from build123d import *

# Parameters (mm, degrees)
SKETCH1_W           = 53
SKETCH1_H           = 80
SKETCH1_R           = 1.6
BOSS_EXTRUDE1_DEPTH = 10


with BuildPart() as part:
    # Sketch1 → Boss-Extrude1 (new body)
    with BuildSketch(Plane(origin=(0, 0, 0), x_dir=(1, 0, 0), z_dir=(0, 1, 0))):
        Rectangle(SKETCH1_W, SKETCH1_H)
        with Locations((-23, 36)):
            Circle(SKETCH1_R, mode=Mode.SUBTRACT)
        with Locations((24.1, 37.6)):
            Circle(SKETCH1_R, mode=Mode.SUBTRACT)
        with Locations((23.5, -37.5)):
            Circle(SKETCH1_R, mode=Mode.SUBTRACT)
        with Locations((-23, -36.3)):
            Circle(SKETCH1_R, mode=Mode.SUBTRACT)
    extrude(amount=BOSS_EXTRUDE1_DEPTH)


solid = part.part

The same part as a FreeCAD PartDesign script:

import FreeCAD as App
import Part
import Sketcher
from FreeCAD import Vector
Q = App.Units.Quantity


def add_polygon(sketch, points):
    """Adds a closed chain of lines whose ends are joined by coincident constraints."""
    first, n = sketch.GeometryCount, len(points)
    for a, b in zip(points, points[1:] + points[:1]):
        sketch.addGeometry(Part.LineSegment(App.Vector(*a, 0), App.Vector(*b, 0)), False)
    for i in range(n):
        sketch.addConstraint(Sketcher.Constraint("Coincident", first + i, 2, first + (i + 1) % n, 1))

doc = App.newDocument("Part")
body = doc.addObject("PartDesign::Body", "Body")

# Sketch on XZ plane
sketch1 = body.newObject("Sketcher::SketchObject", "Sketch")
sketch1.AttachmentSupport = (doc.getObject("XZ_Plane"), [""])
sketch1.MapMode = "FlatFace"
add_polygon(sketch1, [(-26.5, -40), (-26.5, 40), (26.5, 40), (26.5, -40)])  # lines 0-3
sketch1.addGeometry(Part.Circle(Vector(-23, 36.3, 0), Vector(0, 0, 1), 1.6), False)  # 4
sketch1.addGeometry(Part.Circle(Vector(23.5, 37.5, 0), Vector(0, 0, 1), 1.6), False)  # 5
sketch1.addGeometry(Part.Circle(Vector(-23, -36, 0), Vector(0, 0, 1), 1.6), False)  # 6
sketch1.addGeometry(Part.Circle(Vector(24.1, -37.6, 0), Vector(0, 0, 1), 1.6), False)  # 7
sketch1.addConstraint(Sketcher.Constraint("Vertical", 0))
sketch1.addConstraint(Sketcher.Constraint("Horizontal", 1))
sketch1.addConstraint(Sketcher.Constraint("Vertical", 2))
sketch1.addConstraint(Sketcher.Constraint("Horizontal", 3))
sketch1.addConstraint(Sketcher.Constraint("Equal", 4, 5))
sketch1.addConstraint(Sketcher.Constraint("Equal", 5, 6))
sketch1.addConstraint(Sketcher.Constraint("Equal", 6, 7))
sketch1.addConstraint(Sketcher.Constraint("Symmetric", 0, 2, 2, 2, -1, 1))
sketch1.addConstraint(Sketcher.Constraint("Vertical", 4, 3, 6, 3))
sketch1.addConstraint(Sketcher.Constraint("Diameter", 4, Q("3.2 mm")))
sketch1.addConstraint(Sketcher.Constraint("DistanceX", 1, 1, 1, 2, Q("53 mm")))
sketch1.addConstraint(Sketcher.Constraint("DistanceY", 0, 1, 0, 2, Q("80 mm")))
sketch1.addConstraint(Sketcher.Constraint("DistanceX", 4, 3, -1, 1, Q("23 mm")))
sketch1.addConstraint(Sketcher.Constraint("DistanceY", 6, 3, -1, 1, Q("36 mm")))
sketch1.addConstraint(Sketcher.Constraint("DistanceX", 0, 2, 5, 3, Q("50 mm")))
sketch1.addConstraint(Sketcher.Constraint("DistanceY", -1, 1, 4, 3, Q("36.3 mm")))
sketch1.addConstraint(Sketcher.Constraint("DistanceY", -1, 1, 5, 3, Q("37.5 mm")))
sketch1.addConstraint(Sketcher.Constraint("DistanceX", -1, 1, 7, 3, Q("24.1 mm")))
sketch1.addConstraint(Sketcher.Constraint("DistanceY", 7, 3, -1, 1, Q("37.6 mm")))
pad1 = body.newObject("PartDesign::Pad", "Pad")
pad1.Profile = sketch1
pad1.Length = 10
pad1.Reversed = True

doc.recompute()
